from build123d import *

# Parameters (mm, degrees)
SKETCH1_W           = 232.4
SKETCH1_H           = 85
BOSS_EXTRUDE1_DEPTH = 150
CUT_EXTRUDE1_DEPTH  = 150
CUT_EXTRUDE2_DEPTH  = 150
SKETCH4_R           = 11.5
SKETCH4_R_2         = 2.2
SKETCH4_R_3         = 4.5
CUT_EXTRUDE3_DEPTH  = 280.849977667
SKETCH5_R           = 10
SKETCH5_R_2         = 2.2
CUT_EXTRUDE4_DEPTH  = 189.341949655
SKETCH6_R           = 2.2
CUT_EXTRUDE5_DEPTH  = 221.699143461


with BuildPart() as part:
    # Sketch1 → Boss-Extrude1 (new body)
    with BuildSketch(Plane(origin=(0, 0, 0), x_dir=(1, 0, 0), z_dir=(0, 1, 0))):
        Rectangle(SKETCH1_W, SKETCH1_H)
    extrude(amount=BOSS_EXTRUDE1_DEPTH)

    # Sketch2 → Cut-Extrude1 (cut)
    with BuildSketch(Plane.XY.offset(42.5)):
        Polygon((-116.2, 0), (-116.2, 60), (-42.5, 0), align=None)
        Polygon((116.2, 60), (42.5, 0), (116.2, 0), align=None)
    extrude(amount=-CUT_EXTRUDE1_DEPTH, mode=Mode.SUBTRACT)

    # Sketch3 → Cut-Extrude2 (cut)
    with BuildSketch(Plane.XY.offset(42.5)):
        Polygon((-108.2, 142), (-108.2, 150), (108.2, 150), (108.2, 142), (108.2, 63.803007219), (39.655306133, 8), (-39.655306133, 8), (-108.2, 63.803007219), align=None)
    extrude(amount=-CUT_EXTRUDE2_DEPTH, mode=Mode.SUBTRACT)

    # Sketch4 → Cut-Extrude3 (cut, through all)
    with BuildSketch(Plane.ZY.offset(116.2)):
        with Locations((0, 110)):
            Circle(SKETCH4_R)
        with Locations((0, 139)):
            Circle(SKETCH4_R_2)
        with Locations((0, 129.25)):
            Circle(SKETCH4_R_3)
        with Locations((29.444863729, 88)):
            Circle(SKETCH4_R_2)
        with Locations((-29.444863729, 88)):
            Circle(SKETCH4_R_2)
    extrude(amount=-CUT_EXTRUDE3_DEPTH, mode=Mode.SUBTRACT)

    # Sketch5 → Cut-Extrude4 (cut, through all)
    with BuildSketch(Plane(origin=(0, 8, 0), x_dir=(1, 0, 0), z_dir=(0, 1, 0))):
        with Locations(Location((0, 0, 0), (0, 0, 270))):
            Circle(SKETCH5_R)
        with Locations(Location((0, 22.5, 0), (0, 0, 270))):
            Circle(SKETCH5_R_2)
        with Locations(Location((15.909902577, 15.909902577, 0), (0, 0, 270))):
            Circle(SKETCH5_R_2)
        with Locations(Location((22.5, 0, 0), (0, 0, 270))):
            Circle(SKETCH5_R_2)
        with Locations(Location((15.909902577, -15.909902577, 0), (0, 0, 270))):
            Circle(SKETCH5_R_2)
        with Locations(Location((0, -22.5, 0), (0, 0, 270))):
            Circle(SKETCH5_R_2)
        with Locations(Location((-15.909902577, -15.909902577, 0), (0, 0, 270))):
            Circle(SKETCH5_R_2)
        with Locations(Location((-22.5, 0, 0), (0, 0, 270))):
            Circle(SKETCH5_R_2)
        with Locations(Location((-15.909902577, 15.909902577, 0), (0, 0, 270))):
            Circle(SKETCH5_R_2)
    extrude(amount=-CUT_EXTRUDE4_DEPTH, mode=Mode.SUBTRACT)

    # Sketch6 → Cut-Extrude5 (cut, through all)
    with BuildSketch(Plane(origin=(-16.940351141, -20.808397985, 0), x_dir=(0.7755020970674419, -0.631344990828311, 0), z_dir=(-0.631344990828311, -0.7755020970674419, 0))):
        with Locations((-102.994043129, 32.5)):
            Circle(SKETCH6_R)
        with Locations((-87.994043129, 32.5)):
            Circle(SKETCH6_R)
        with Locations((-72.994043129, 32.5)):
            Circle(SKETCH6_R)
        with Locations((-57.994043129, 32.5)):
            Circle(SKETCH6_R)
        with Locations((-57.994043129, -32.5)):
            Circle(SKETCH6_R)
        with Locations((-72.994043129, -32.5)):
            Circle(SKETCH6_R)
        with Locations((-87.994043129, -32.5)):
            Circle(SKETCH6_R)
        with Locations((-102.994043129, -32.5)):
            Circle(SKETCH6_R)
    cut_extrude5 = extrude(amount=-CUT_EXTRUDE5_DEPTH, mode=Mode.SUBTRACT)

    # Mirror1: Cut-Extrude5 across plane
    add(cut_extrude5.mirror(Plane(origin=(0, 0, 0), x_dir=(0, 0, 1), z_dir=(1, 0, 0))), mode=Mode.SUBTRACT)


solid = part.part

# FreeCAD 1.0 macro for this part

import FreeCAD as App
import Part
import Sketcher

V = App.Vector

doc = App.newDocument("Part")
body = doc.addObject("PartDesign::Body", "Body")

sketch1 = body.newObject("Sketcher::SketchObject", "Sketch")
sketch1.AttachmentSupport = (doc.getObject("XZ_Plane"), [""])
sketch1.MapMode = "FlatFace"
sketch1.addGeometry(Part.LineSegment(V(-116, -42, 0), V(-116, 42, 0)), False)
sketch1.addGeometry(Part.LineSegment(V(-116, 42, 0), V(116, 42, 0)), False)
sketch1.addGeometry(Part.LineSegment(V(116, 42, 0), V(116, -42, 0)), False)
sketch1.addGeometry(Part.LineSegment(V(116, -42, 0), V(-116, -42, 0)), False)
sketch1.addConstraint(Sketcher.Constraint("Coincident", 0, 2, 1, 1))
sketch1.addConstraint(Sketcher.Constraint("Coincident", 1, 2, 2, 1))
sketch1.addConstraint(Sketcher.Constraint("Coincident", 2, 2, 3, 1))
sketch1.addConstraint(Sketcher.Constraint("Coincident", 3, 2, 0, 1))
sketch1.addConstraint(Sketcher.Constraint("Vertical", 0))
sketch1.addConstraint(Sketcher.Constraint("Horizontal", 1))
sketch1.addConstraint(Sketcher.Constraint("Vertical", 2))
sketch1.addConstraint(Sketcher.Constraint("Horizontal", 3))
sketch1.addConstraint(Sketcher.Constraint("Symmetric", 0, 2, 2, 2, -1, 1))
sketch1.addConstraint(Sketcher.Constraint("DistanceY", 0, 1, 0, 2, 85.0))
sketch1.addConstraint(Sketcher.Constraint("DistanceX", 1, 1, 1, 2, 232.4))
pad1 = body.newObject("PartDesign::Pad", "Pad")
pad1.Profile = sketch1
pad1.Length = 150
pad1.Reversed = True

sketch2 = body.newObject("Sketcher::SketchObject", "Sketch001")
sketch2.AttachmentSupport = (doc.getObject("XY_Plane"), [""])
sketch2.MapMode = "FlatFace"
sketch2.AttachmentOffset = App.Placement(V(0, 0, 42.5), App.Rotation())
sketch2.addGeometry(Part.LineSegment(V(-116, 60, 0), V(-116, 0, 0)), False)
sketch2.addGeometry(Part.LineSegment(V(-116, 0, 0), V(-42, 0, 0)), False)
sketch2.addGeometry(Part.LineSegment(V(-42, 0, 0), V(-116, 60, 0)), False)
sketch2.addGeometry(Part.LineSegment(V(116, 60, 0), V(42, 0, 0)), False)
sketch2.addGeometry(Part.LineSegment(V(42, 0, 0), V(116, 0, 0)), False)
sketch2.addGeometry(Part.LineSegment(V(116, 0, 0), V(116, 60, 0)), False)
sketch2.addConstraint(Sketcher.Constraint("Coincident", 0, 2, 1, 1))
sketch2.addConstraint(Sketcher.Constraint("Coincident", 1, 2, 2, 1))
sketch2.addConstraint(Sketcher.Constraint("Coincident", 2, 2, 0, 1))
sketch2.addConstraint(Sketcher.Constraint("Coincident", 3, 2, 4, 1))
sketch2.addConstraint(Sketcher.Constraint("Coincident", 4, 2, 5, 1))
sketch2.addConstraint(Sketcher.Constraint("Coincident", 5, 2, 3, 1))
sketch2.addConstraint(Sketcher.Constraint("Vertical", 0))
sketch2.addConstraint(Sketcher.Constraint("Horizontal", 1))
sketch2.addConstraint(Sketcher.Constraint("Horizontal", 4))
sketch2.addConstraint(Sketcher.Constraint("Vertical", 5))
sketch2.addConstraint(Sketcher.Constraint("Symmetric", 1, 2, 3, 2, -1, 1))
sketch2.addConstraint(Sketcher.Constraint("Symmetric", 0, 2, 4, 2, -2))
sketch2.addConstraint(Sketcher.Constraint("Horizontal", 2, 2, 5, 2))
sketch2.addConstraint(Sketcher.Constraint("DistanceY", 0, 2, 0, 1, 60.0))
sketch2.addConstraint(Sketcher.Constraint("DistanceX", 1, 1, 1, 2, 73.7))
sketch2.addConstraint(Sketcher.Constraint("DistanceX", 1, 2, 3, 2, 85.0))
pocket1 = body.newObject("PartDesign::Pocket", "Pocket")
pocket1.Profile = sketch2
pocket1.Length = 150

sketch3 = body.newObject("Sketcher::SketchObject", "Sketch002")
sketch3.AttachmentSupport = (doc.getObject("XY_Plane"), [""])
sketch3.MapMode = "FlatFace"
sketch3.AttachmentOffset = App.Placement(V(0, 0, 42.5), App.Rotation())
sketch3.addGeometry(Part.LineSegment(V(-108, 150, 0), V(-108, 64, 0)), False)
sketch3.addGeometry(Part.LineSegment(V(-108, 64, 0), V(-40, 8, 0)), False)
sketch3.addGeometry(Part.LineSegment(V(-40, 8, 0), V(40, 8, 0)), False)
sketch3.addGeometry(Part.LineSegment(V(40, 8, 0), V(108, 64, 0)), False)
sketch3.addGeometry(Part.LineSegment(V(108, 64, 0), V(108, 150, 0)), False)
sketch3.addGeometry(Part.LineSegment(V(108, 150, 0), V(-108, 150, 0)), False)
sketch3.addConstraint(Sketcher.Constraint("Coincident", 0, 2, 1, 1))
sketch3.addConstraint(Sketcher.Constraint("Coincident", 1, 2, 2, 1))
sketch3.addConstraint(Sketcher.Constraint("Coincident", 2, 2, 3, 1))
sketch3.addConstraint(Sketcher.Constraint("Coincident", 3, 2, 4, 1))
sketch3.addConstraint(Sketcher.Constraint("Coincident", 4, 2, 5, 1))
sketch3.addConstraint(Sketcher.Constraint("Coincident", 5, 2, 0, 1))
sketch3.addConstraint(Sketcher.Constraint("Vertical", 0))
sketch3.addConstraint(Sketcher.Constraint("Horizontal", 2))
sketch3.addConstraint(Sketcher.Constraint("Vertical", 4))
sketch3.addConstraint(Sketcher.Constraint("Horizontal", 5))
sketch3.addConstraint(Sketcher.Constraint("Symmetric", 0, 2, 3, 2, -2))
sketch3.addConstraint(Sketcher.Constraint("Equal", 1, 3))
sketch3.addConstraint(Sketcher.Constraint("DistanceX", 5, 2, 5, 1, 216.4))
sketch3.addConstraint(Sketcher.Constraint("DistanceY", -1, 1, 1, 2, 8.0))
sketch3.addConstraint(Sketcher.Constraint("DistanceY", -1, 1, 4, 2, 150.0))
sketch3.addConstraint(Sketcher.Constraint("DistanceX", 2, 1, 2, 2, 79.310612))
sketch3.addConstraint(Sketcher.Constraint("DistanceY", 0, 2, 0, 1, 86.196993))
pocket2 = body.newObject("PartDesign::Pocket", "Pocket001")
pocket2.Profile = sketch3
pocket2.Length = 150

sketch4 = body.newObject("Sketcher::SketchObject", "Sketch003")
sketch4.AttachmentSupport = (doc.getObject("YZ_Plane"), [""])
sketch4.MapMode = "FlatFace"
sketch4.AttachmentOffset = App.Placement(V(0, 0, -116.2), App.Rotation())
sketch4.addGeometry(Part.Circle(V(110, 0, 0), V(0, 0, 1), 11.5), False)
sketch4.addGeometry(Part.Circle(V(139, 0, 0), V(0, 0, 1), 2.2), False)
sketch4.addGeometry(Part.Circle(V(129.2, 0, 0), V(0, 0, 1), 4.5), False)
sketch4.addGeometry(Part.Circle(V(88, 29.4, 0), V(0, 0, 1), 2.2), False)
sketch4.addGeometry(Part.Circle(V(88, -29.4, 0), V(0, 0, 1), 2.2), False)
sketch4.addConstraint(Sketcher.Constraint("Equal", 1, 3))
sketch4.addConstraint(Sketcher.Constraint("Equal", 3, 4))
sketch4.addConstraint(Sketcher.Constraint("Symmetric", 3, 3, 4, 3, -1))
sketch4.addConstraint(Sketcher.Constraint("PointOnObject", 0, 3, -1))
sketch4.addConstraint(Sketcher.Constraint("PointOnObject", 1, 3, -1))
sketch4.addConstraint(Sketcher.Constraint("PointOnObject", 2, 3, -1))
sketch4.addConstraint(Sketcher.Constraint("Diameter", 0, 23.0))
sketch4.addConstraint(Sketcher.Constraint("Diameter", 2, 9.0))
sketch4.addConstraint(Sketcher.Constraint("Diameter", 1, 4.4))
sketch4.addConstraint(Sketcher.Constraint("DistanceX", -1, 1, 0, 3, 110.0))
sketch4.addConstraint(Sketcher.Constraint("DistanceX", -1, 1, 1, 3, 139.0))
sketch4.addConstraint(Sketcher.Constraint("DistanceX", -1, 1, 3, 3, 88.0))
sketch4.addConstraint(Sketcher.Constraint("DistanceX", -1, 1, 2, 3, 129.25))
sketch4.addConstraint(Sketcher.Constraint("DistanceY", -1, 1, 3, 3, 29.444864))
pocket3 = body.newObject("PartDesign::Pocket", "Pocket002")
pocket3.Profile = sketch4
pocket3.Type = "ThroughAll"
pocket3.Reversed = True

sketch5 = body.newObject("Sketcher::SketchObject", "Sketch004")
sketch5.AttachmentSupport = (doc.getObject("XZ_Plane"), [""])
sketch5.MapMode = "FlatFace"
sketch5.AttachmentOffset = App.Placement(V(0, 0, -8), App.Rotation())
sketch5.addGeometry(Part.Circle(V(0, 0, 0), V(0, 0, 1), 10), False)
sketch5.addGeometry(Part.Circle(V(0, -22.5, 0), V(0, 0, 1), 2.2), False)
sketch5.addGeometry(Part.Circle(V(15.9, -15.9, 0), V(0, 0, 1), 2.2), False)
sketch5.addGeometry(Part.Circle(V(22.5, 0, 0), V(0, 0, 1), 2.2), False)
sketch5.addGeometry(Part.Circle(V(15.9, 15.9, 0), V(0, 0, 1), 2.2), False)
sketch5.addGeometry(Part.Circle(V(0, 22.5, 0), V(0, 0, 1), 2.2), False)
sketch5.addGeometry(Part.Circle(V(-15.9, 15.9, 0), V(0, 0, 1), 2.2), False)
sketch5.addGeometry(Part.Circle(V(-22.5, 0, 0), V(0, 0, 1), 2.2), False)
sketch5.addGeometry(Part.Circle(V(-15.9, -15.9, 0), V(0, 0, 1), 2.2), False)
sketch5.addConstraint(Sketcher.Constraint("Coincident", 0, 3, -1, 1))
sketch5.addConstraint(Sketcher.Constraint("Equal", 1, 2))
sketch5.addConstraint(Sketcher.Constraint("Equal", 2, 3))
sketch5.addConstraint(Sketcher.Constraint("Equal", 3, 4))
sketch5.addConstraint(Sketcher.Constraint("Equal", 4, 5))
sketch5.addConstraint(Sketcher.Constraint("Equal", 5, 6))
sketch5.addConstraint(Sketcher.Constraint("Equal", 6, 7))
sketch5.addConstraint(Sketcher.Constraint("Equal", 7, 8))
sketch5.addConstraint(Sketcher.Constraint("Symmetric", 1, 3, 5, 3, -1, 1))
sketch5.addConstraint(Sketcher.Constraint("Symmetric", 2, 3, 6, 3, -1, 1))
sketch5.addConstraint(Sketcher.Constraint("Symmetric", 3, 3, 7, 3, -1, 1))
sketch5.addConstraint(Sketcher.Constraint("Symmetric", 4, 3, 8, 3, -1, 1))
sketch5.addConstraint(Sketcher.Constraint("Symmetric", 4, 3, 6, 3, -2))
sketch5.addConstraint(Sketcher.Constraint("PointOnObject", 1, 3, -2))
sketch5.addConstraint(Sketcher.Constraint("PointOnObject", 3, 3, -1))
sketch5.addConstraint(Sketcher.Constraint("Diameter", 0, 20.0))
sketch5.addConstraint(Sketcher.Constraint("Diameter", 1, 4.4))
sketch5.addConstraint(Sketcher.Constraint("DistanceY", 1, 3, 5, 3, 45.0))
sketch5.addConstraint(Sketcher.Constraint("DistanceX", -1, 1, 3, 3, 22.5))
sketch5.addConstraint(Sketcher.Constraint("DistanceX", -1, 1, 2, 3, 15.909903))
sketch5.addConstraint(Sketcher.Constraint("DistanceY", 2, 3, -1, 1, 15.909903))
pocket4 = body.newObject("PartDesign::Pocket", "Pocket003")
pocket4.Profile = sketch5
pocket4.Type = "ThroughAll"
pocket4.Reversed = True

sketch6 = body.newObject("Sketcher::SketchObject", "Sketch005")
sketch6.Placement = App.Placement(V(-16.940351, -20.808398, 0), App.Rotation(V(0.775502097, -0.631344991, 0), V(0, 0, 1), V(-0.631344991, -0.775502097, 0), "ZXY"))
sketch6.addGeometry(Part.Circle(V(-103, 32.5, 0), V(0, 0, 1), 2.2), False)
sketch6.addGeometry(Part.Circle(V(-88, 32.5, 0), V(0, 0, 1), 2.2), False)
sketch6.addGeometry(Part.Circle(V(-73, 32.5, 0), V(0, 0, 1), 2.2), False)
sketch6.addGeometry(Part.Circle(V(-58, 32.5, 0), V(0, 0, 1), 2.2), False)
sketch6.addGeometry(Part.Circle(V(-58, -32.5, 0), V(0, 0, 1), 2.2), False)
sketch6.addGeometry(Part.Circle(V(-73, -32.5, 0), V(0, 0, 1), 2.2), False)
sketch6.addGeometry(Part.Circle(V(-88, -32.5, 0), V(0, 0, 1), 2.2), False)
sketch6.addGeometry(Part.Circle(V(-103, -32.5, 0), V(0, 0, 1), 2.2), False)
sketch6.addConstraint(Sketcher.Constraint("Equal", 0, 1))
sketch6.addConstraint(Sketcher.Constraint("Equal", 1, 2))
sketch6.addConstraint(Sketcher.Constraint("Equal", 2, 3))
sketch6.addConstraint(Sketcher.Constraint("Equal", 3, 4))
sketch6.addConstraint(Sketcher.Constraint("Equal", 4, 5))
sketch6.addConstraint(Sketcher.Constraint("Equal", 5, 6))
sketch6.addConstraint(Sketcher.Constraint("Equal", 6, 7))
sketch6.addConstraint(Sketcher.Constraint("Symmetric", 3, 3, 4, 3, -1))
sketch6.addConstraint(Sketcher.Constraint("Symmetric", 2, 3, 5, 3, -1))
sketch6.addConstraint(Sketcher.Constraint("Symmetric", 1, 3, 6, 3, -1))
sketch6.addConstraint(Sketcher.Constraint("Symmetric", 0, 3, 7, 3, -1))
sketch6.addConstraint(Sketcher.Constraint("Horizontal", 0, 3, 1, 3))
sketch6.addConstraint(Sketcher.Constraint("Horizontal", 1, 3, 2, 3))
sketch6.addConstraint(Sketcher.Constraint("Horizontal", 2, 3, 3, 3))
sketch6.addConstraint(Sketcher.Constraint("Diameter", 0, 4.4))
sketch6.addConstraint(Sketcher.Constraint("DistanceX", 0, 3, 1, 3, 15.0))
sketch6.addConstraint(Sketcher.Constraint("DistanceX", 1, 3, 2, 3, 15.0))
sketch6.addConstraint(Sketcher.Constraint("DistanceX", 2, 3, 3, 3, 15.0))
sketch6.addConstraint(Sketcher.Constraint("DistanceY", 4, 3, 3, 3, 65.0))
sketch6.addConstraint(Sketcher.Constraint("DistanceX", 0, 3, -1, 1, 102.994043))
pocket5 = body.newObject("PartDesign::Pocket", "Pocket004")
pocket5.Profile = sketch6
pocket5.Type = "ThroughAll"
doc.recompute()

mirrored = body.newObject("PartDesign::Mirrored", "Mirrored")
mirrored.Originals = [pocket5]
mirrored.MirrorPlane = (doc.getObject("YZ_Plane"), [""])
body.Tip = mirrored

doc.recompute()
